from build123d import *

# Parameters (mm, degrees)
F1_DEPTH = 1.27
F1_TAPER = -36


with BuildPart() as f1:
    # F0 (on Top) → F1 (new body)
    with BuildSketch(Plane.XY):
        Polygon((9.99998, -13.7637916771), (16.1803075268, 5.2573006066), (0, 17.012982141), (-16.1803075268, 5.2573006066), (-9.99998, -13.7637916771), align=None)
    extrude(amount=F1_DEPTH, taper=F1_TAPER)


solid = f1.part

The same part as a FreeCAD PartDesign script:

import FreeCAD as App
import Part
import Sketcher
from FreeCAD import Vector
Q = App.Units.Quantity

doc = App.newDocument("Part")
params = doc.addObject("Spreadsheet::Sheet", "Params")
for row, (alias, value) in enumerate([
    ("pad1_length", "0.05 in"),
    ("pad1_taper", "36 deg"),
], start=1):
    params.set(f"A{row}", alias)
    params.set(f"B{row}", "=" + value)
    params.setAlias(f"B{row}", alias)

body = doc.addObject("PartDesign::Body", "Body")

# Sketch on XY plane
sketch1 = doc.addObject("Sketcher::SketchObject", "Sketch")
body.addObject(sketch1)
sketch1.AttachmentSupport = (doc.XY_Plane, [""])
sketch1.MapMode = "FlatFace"
sketch1.addGeometry([
    Part.LineSegment(Vector(10, -14, 0), Vector(16, 5, 0)),  # 0
    Part.LineSegment(Vector(16, 5, 0), Vector(0, 17, 0)),  # 1
    Part.LineSegment(Vector(0, 17, 0), Vector(-16, 5, 0)),  # 2
    Part.LineSegment(Vector(-16, 5, 0), Vector(-10, -14, 0)),  # 3
    Part.LineSegment(Vector(-10, -14, 0), Vector(10, -14, 0)),  # 4
], False)
sketch1.addConstraint([
    Sketcher.Constraint("Coincident", 0, 2, 1, 1),
    Sketcher.Constraint("Coincident", 1, 2, 2, 1),
    Sketcher.Constraint("Coincident", 2, 2, 3, 1),
    Sketcher.Constraint("Coincident", 3, 2, 4, 1),
    Sketcher.Constraint("Coincident", 4, 2, 0, 1),
    Sketcher.Constraint("Horizontal", 4),
    Sketcher.Constraint("Symmetric", 0, 2, 2, 2, -2),
    Sketcher.Constraint("PointOnObject", 1, 2, -2),
    Sketcher.Constraint("Equal", 0, 1),
    Sketcher.Constraint("Equal", 2, 3),
    Sketcher.Constraint("Angle", 0, Q("72 deg")),
    Sketcher.Constraint("Angle", 1, Q("144 deg")),
    Sketcher.Constraint("DistanceX", 4, 1, 4, 2, Q("0.7874 in")),
    Sketcher.Constraint("DistanceY", -1, 1, 0, 2, Q("5.257301 mm")),
])
pad1 = doc.addObject("PartDesign::Pad", "Pad")
body.addObject(pad1)
pad1.Profile = sketch1
pad1.setExpression("Length", "Params.pad1_length")
pad1.setExpression("TaperAngle", "Params.pad1_taper")

doc.recompute()
